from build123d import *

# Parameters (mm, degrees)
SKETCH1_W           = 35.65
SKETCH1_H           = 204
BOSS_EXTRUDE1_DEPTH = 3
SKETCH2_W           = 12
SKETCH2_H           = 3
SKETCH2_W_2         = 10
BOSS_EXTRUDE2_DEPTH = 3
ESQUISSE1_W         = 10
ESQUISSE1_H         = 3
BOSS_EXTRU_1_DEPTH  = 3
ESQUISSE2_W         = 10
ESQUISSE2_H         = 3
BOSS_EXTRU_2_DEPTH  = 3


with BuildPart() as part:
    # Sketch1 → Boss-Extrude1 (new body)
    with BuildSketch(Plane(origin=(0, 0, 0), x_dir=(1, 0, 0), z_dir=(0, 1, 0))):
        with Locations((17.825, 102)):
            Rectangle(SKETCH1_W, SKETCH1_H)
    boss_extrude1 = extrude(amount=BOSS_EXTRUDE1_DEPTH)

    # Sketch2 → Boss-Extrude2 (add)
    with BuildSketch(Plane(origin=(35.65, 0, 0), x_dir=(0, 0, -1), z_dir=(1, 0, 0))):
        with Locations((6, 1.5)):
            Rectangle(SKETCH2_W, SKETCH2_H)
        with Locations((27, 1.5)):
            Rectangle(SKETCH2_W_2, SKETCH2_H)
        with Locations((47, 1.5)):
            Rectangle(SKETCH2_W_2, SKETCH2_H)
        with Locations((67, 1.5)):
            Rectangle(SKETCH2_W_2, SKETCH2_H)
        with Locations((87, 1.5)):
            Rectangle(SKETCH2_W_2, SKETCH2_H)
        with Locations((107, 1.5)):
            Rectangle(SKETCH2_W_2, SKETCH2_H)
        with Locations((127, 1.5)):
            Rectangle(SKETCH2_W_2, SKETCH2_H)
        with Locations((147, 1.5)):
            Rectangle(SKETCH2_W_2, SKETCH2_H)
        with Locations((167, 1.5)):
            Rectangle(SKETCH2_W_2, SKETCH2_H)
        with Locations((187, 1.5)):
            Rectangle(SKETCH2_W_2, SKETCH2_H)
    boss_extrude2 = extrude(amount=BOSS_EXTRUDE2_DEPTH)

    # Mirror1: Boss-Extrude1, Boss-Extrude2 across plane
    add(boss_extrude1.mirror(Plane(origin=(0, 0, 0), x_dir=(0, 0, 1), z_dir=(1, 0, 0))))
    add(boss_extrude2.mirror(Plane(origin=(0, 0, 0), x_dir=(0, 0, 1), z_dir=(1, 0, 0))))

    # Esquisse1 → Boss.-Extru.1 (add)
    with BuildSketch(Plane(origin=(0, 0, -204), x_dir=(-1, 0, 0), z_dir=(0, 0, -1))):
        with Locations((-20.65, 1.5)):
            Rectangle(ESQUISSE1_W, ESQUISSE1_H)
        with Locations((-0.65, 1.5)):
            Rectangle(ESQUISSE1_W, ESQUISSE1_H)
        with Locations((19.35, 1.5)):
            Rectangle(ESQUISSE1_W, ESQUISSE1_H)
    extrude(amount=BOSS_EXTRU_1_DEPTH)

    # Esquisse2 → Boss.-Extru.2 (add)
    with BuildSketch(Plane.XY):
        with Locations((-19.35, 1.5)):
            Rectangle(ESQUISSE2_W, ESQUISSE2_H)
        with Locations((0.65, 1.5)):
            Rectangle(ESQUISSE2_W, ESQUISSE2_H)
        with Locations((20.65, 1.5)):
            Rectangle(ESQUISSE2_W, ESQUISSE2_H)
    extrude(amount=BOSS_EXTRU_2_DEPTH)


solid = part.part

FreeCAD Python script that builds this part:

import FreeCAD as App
import Part
import Sketcher
from FreeCAD import Vector
Q = App.Units.Quantity

doc = App.newDocument("Part")
body = doc.addObject("PartDesign::Body", "Body")

# Sketch on XZ plane
sketch1 = body.newObject("Sketcher::SketchObject", "Sketch")
sketch1.AttachmentSupport = (doc.getObject("XZ_Plane"), [""])
sketch1.MapMode = "FlatFace"
sketch1.addGeometry([
    Part.LineSegment(Vector(0, -204, 0), Vector(0, 0, 0)),
    Part.LineSegment(Vector(0, 0, 0), Vector(36, 0, 0)),
    Part.LineSegment(Vector(36, 0, 0), Vector(36, -204, 0)),
    Part.LineSegment(Vector(36, -204, 0), Vector(0, -204, 0)),
], False)
sketch1.addConstraint([
    Sketcher.Constraint("Coincident", 0, 2, 1, 1),
    Sketcher.Constraint("Coincident", 1, 2, 2, 1),
    Sketcher.Constraint("Coincident", 2, 2, 3, 1),
    Sketcher.Constraint("Coincident", 3, 2, 0, 1),
    Sketcher.Constraint("Vertical", 0),
    Sketcher.Constraint("Horizontal", 1),
    Sketcher.Constraint("Vertical", 2),
    Sketcher.Constraint("Horizontal", 3),
    Sketcher.Constraint("Coincident", 0, 2, -1, 1),
    Sketcher.Constraint("DistanceY", 0, 1, 0, 2, Q("204 mm")),
    Sketcher.Constraint("DistanceX", 1, 1, 1, 2, Q("35.65 mm")),
])
pad1 = body.newObject("PartDesign::Pad", "Pad")
pad1.Profile = sketch1
pad1.Length = 3
pad1.Reversed = True

# Sketch on YZ plane
sketch2 = body.newObject("Sketcher::SketchObject", "Sketch001")
sketch2.AttachmentSupport = (doc.getObject("YZ_Plane"), [""])
sketch2.MapMode = "FlatFace"
sketch2.AttachmentOffset = App.Placement(Vector(0, 0, 35.65), App.Rotation())
sketch2.addGeometry([
    Part.LineSegment(Vector(3, 0, 0), Vector(0, 0, 0)),  # 0
    Part.LineSegment(Vector(0, 0, 0), Vector(0, -12, 0)),  # 1
    Part.LineSegment(Vector(0, -12, 0), Vector(3, -12, 0)),  # 2
    Part.LineSegment(Vector(3, -12, 0), Vector(3, 0, 0)),  # 3
    Part.LineSegment(Vector(3, -22, 0), Vector(0, -22, 0)),  # 4
    Part.LineSegment(Vector(0, -22, 0), Vector(0, -32, 0)),  # 5
    Part.LineSegment(Vector(0, -32, 0), Vector(3, -32, 0)),  # 6
    Part.LineSegment(Vector(3, -32, 0), Vector(3, -22, 0)),  # 7
    Part.LineSegment(Vector(3, -42, 0), Vector(0, -42, 0)),  # 8
    Part.LineSegment(Vector(0, -42, 0), Vector(0, -52, 0)),  # 9
    Part.LineSegment(Vector(0, -52, 0), Vector(3, -52, 0)),  # 10
    Part.LineSegment(Vector(3, -52, 0), Vector(3, -42, 0)),  # 11
    Part.LineSegment(Vector(3, -62, 0), Vector(0, -62, 0)),  # 12
    Part.LineSegment(Vector(0, -62, 0), Vector(0, -72, 0)),  # 13
    Part.LineSegment(Vector(0, -72, 0), Vector(3, -72, 0)),  # 14
    Part.LineSegment(Vector(3, -72, 0), Vector(3, -62, 0)),  # 15
    Part.LineSegment(Vector(3, -82, 0), Vector(0, -82, 0)),  # 16
    Part.LineSegment(Vector(0, -82, 0), Vector(0, -92, 0)),  # 17
    Part.LineSegment(Vector(0, -92, 0), Vector(3, -92, 0)),  # 18
    Part.LineSegment(Vector(3, -92, 0), Vector(3, -82, 0)),  # 19
    Part.LineSegment(Vector(3, -102, 0), Vector(0, -102, 0)),  # 20
    Part.LineSegment(Vector(0, -102, 0), Vector(0, -112, 0)),  # 21
    Part.LineSegment(Vector(0, -112, 0), Vector(3, -112, 0)),  # 22
    Part.LineSegment(Vector(3, -112, 0), Vector(3, -102, 0)),  # 23
    Part.LineSegment(Vector(3, -122, 0), Vector(0, -122, 0)),  # 24
    Part.LineSegment(Vector(0, -122, 0), Vector(0, -132, 0)),  # 25
    Part.LineSegment(Vector(0, -132, 0), Vector(3, -132, 0)),  # 26
    Part.LineSegment(Vector(3, -132, 0), Vector(3, -122, 0)),  # 27
    Part.LineSegment(Vector(3, -142, 0), Vector(0, -142, 0)),  # 28
    Part.LineSegment(Vector(0, -142, 0), Vector(0, -152, 0)),  # 29
    Part.LineSegment(Vector(0, -152, 0), Vector(3, -152, 0)),  # 30
    Part.LineSegment(Vector(3, -152, 0), Vector(3, -142, 0)),  # 31
    Part.LineSegment(Vector(3, -162, 0), Vector(0, -162, 0)),  # 32
    Part.LineSegment(Vector(0, -162, 0), Vector(0, -172, 0)),  # 33
    Part.LineSegment(Vector(0, -172, 0), Vector(3, -172, 0)),  # 34
    Part.LineSegment(Vector(3, -172, 0), Vector(3, -162, 0)),  # 35
    Part.LineSegment(Vector(3, -182, 0), Vector(0, -182, 0)),  # 36
    Part.LineSegment(Vector(0, -182, 0), Vector(0, -192, 0)),  # 37
    Part.LineSegment(Vector(0, -192, 0), Vector(3, -192, 0)),  # 38
    Part.LineSegment(Vector(3, -192, 0), Vector(3, -182, 0)),  # 39
], False)
sketch2.addConstraint([
    Sketcher.Constraint("Coincident", 0, 2, 1, 1),
    Sketcher.Constraint("Coincident", 1, 2, 2, 1),
    Sketcher.Constraint("Coincident", 2, 2, 3, 1),
    Sketcher.Constraint("Coincident", 3, 2, 0, 1),
    Sketcher.Constraint("Coincident", 4, 2, 5, 1),
    Sketcher.Constraint("Coincident", 5, 2, 6, 1),
    Sketcher.Constraint("Coincident", 6, 2, 7, 1),
    Sketcher.Constraint("Coincident", 7, 2, 4, 1),
    Sketcher.Constraint("Coincident", 8, 2, 9, 1),
    Sketcher.Constraint("Coincident", 9, 2, 10, 1),
    Sketcher.Constraint("Coincident", 10, 2, 11, 1),
    Sketcher.Constraint("Coincident", 11, 2, 8, 1),
    Sketcher.Constraint("Coincident", 12, 2, 13, 1),
    Sketcher.Constraint("Coincident", 13, 2, 14, 1),
    Sketcher.Constraint("Coincident", 14, 2, 15, 1),
    Sketcher.Constraint("Coincident", 15, 2, 12, 1),
    Sketcher.Constraint("Coincident", 16, 2, 17, 1),
    Sketcher.Constraint("Coincident", 17, 2, 18, 1),
    Sketcher.Constraint("Coincident", 18, 2, 19, 1),
    Sketcher.Constraint("Coincident", 19, 2, 16, 1),
    Sketcher.Constraint("Coincident", 20, 2, 21, 1),
    Sketcher.Constraint("Coincident", 21, 2, 22, 1),
    Sketcher.Constraint("Coincident", 22, 2, 23, 1),
    Sketcher.Constraint("Coincident", 23, 2, 20, 1),
    Sketcher.Constraint("Coincident", 24, 2, 25, 1),
    Sketcher.Constraint("Coincident", 25, 2, 26, 1),
    Sketcher.Constraint("Coincident", 26, 2, 27, 1),
    Sketcher.Constraint("Coincident", 27, 2, 24, 1),
    Sketcher.Constraint("Coincident", 28, 2, 29, 1),
    Sketcher.Constraint("Coincident", 29, 2, 30, 1),
    Sketcher.Constraint("Coincident", 30, 2, 31, 1),
    Sketcher.Constraint("Coincident", 31, 2, 28, 1),
    Sketcher.Constraint("Coincident", 32, 2, 33, 1),
    Sketcher.Constraint("Coincident", 33, 2, 34, 1),
    Sketcher.Constraint("Coincident", 34, 2, 35, 1),
    Sketcher.Constraint("Coincident", 35, 2, 32, 1),
    Sketcher.Constraint("Coincident", 36, 2, 37, 1),
    Sketcher.Constraint("Coincident", 37, 2, 38, 1),
    Sketcher.Constraint("Coincident", 38, 2, 39, 1),
    Sketcher.Constraint("Coincident", 39, 2, 36, 1),
    Sketcher.Constraint("Horizontal", 0),
    Sketcher.Constraint("Vertical", 1),
    Sketcher.Constraint("Horizontal", 2),
    Sketcher.Constraint("Vertical", 3),
    Sketcher.Constraint("Horizontal", 4),
    Sketcher.Constraint("Vertical", 5),
    Sketcher.Constraint("Horizontal", 6),
    Sketcher.Constraint("Vertical", 7),
    Sketcher.Constraint("Horizontal", 8),
    Sketcher.Constraint("Vertical", 9),
    Sketcher.Constraint("Horizontal", 10),
    Sketcher.Constraint("Vertical", 11),
    Sketcher.Constraint("Horizontal", 12),
    Sketcher.Constraint("Vertical", 13),
    Sketcher.Constraint("Horizontal", 14),
    Sketcher.Constraint("Vertical", 15),
    Sketcher.Constraint("Horizontal", 16),
    Sketcher.Constraint("Vertical", 17),
    Sketcher.Constraint("Horizontal", 18),
    Sketcher.Constraint("Vertical", 19),
    Sketcher.Constraint("Horizontal", 20),
    Sketcher.Constraint("Vertical", 21),
    Sketcher.Constraint("Horizontal", 22),
    Sketcher.Constraint("Vertical", 23),
    Sketcher.Constraint("Horizontal", 24),
    Sketcher.Constraint("Vertical", 25),
    Sketcher.Constraint("Horizontal", 26),
    Sketcher.Constraint("Vertical", 27),
    Sketcher.Constraint("Horizontal", 28),
    Sketcher.Constraint("Vertical", 29),
    Sketcher.Constraint("Horizontal", 30),
    Sketcher.Constraint("Vertical", 31),
    Sketcher.Constraint("Horizontal", 32),
    Sketcher.Constraint("Vertical", 33),
    Sketcher.Constraint("Horizontal", 34),
    Sketcher.Constraint("Vertical", 35),
    Sketcher.Constraint("Horizontal", 36),
    Sketcher.Constraint("Vertical", 37),
    Sketcher.Constraint("Horizontal", 38),
    Sketcher.Constraint("Vertical", 39),
    Sketcher.Constraint("Coincident", 0, 2, -1, 1),
    Sketcher.Constraint("PointOnObject", 4, 2, -2),
    Sketcher.Constraint("PointOnObject", 8, 2, -2),
    Sketcher.Constraint("PointOnObject", 12, 2, -2),
    Sketcher.Constraint("PointOnObject", 16, 2, -2),
    Sketcher.Constraint("PointOnObject", 20, 2, -2),
    Sketcher.Constraint("PointOnObject", 24, 2, -2),
    Sketcher.Constraint("PointOnObject", 28, 2, -2),
    Sketcher.Constraint("PointOnObject", 32, 2, -2),
    Sketcher.Constraint("PointOnObject", 36, 2, -2),
    Sketcher.Constraint("Vertical", 3, 2, 6, 2),
    Sketcher.Constraint("Vertical", 7, 2, 10, 2),
    Sketcher.Constraint("Vertical", 11, 2, 14, 2),
    Sketcher.Constraint("Vertical", 15, 2, 18, 2),
    Sketcher.Constraint("Vertical", 19, 2, 22, 2),
    Sketcher.Constraint("Vertical", 23, 2, 26, 2),
    Sketcher.Constraint("Vertical", 27, 2, 30, 2),
    Sketcher.Constraint("Vertical", 31, 2, 34, 2),
    Sketcher.Constraint("Vertical", 35, 2, 38, 2),
    Sketcher.Constraint("Equal", 7, 9),
    Sketcher.Constraint("Equal", 11, 13),
    Sketcher.Constraint("Equal", 15, 17),
    Sketcher.Constraint("Equal", 19, 21),
    Sketcher.Constraint("Equal", 23, 25),
    Sketcher.Constraint("Equal", 27, 29),
    Sketcher.Constraint("Equal", 31, 33),
    Sketcher.Constraint("Equal", 35, 37),
    Sketcher.Constraint("DistanceX", 0, 2, 0, 1, Q("3 mm")),
    Sketcher.Constraint("DistanceY", 1, 2, 1, 1, Q("12 mm")),
    Sketcher.Constraint("DistanceY", 5, 2, 5, 1, Q("10 mm")),
    Sketcher.Constraint("DistanceY", 4, 2, -1, 1, Q("22 mm")),
    Sketcher.Constraint("DistanceY", 8, 2, -1, 1, Q("42 mm")),
    Sketcher.Constraint("DistanceY", 12, 2, -1, 1, Q("62 mm")),
    Sketcher.Constraint("DistanceY", 16, 2, -1, 1, Q("82 mm")),
    Sketcher.Constraint("DistanceY", 20, 2, -1, 1, Q("102 mm")),
    Sketcher.Constraint("DistanceY", 24, 2, -1, 1, Q("122 mm")),
    Sketcher.Constraint("DistanceY", 28, 2, -1, 1, Q("142 mm")),
    Sketcher.Constraint("DistanceY", 32, 2, -1, 1, Q("162 mm")),
    Sketcher.Constraint("DistanceY", 36, 2, -1, 1, Q("182 mm")),
])
pad2 = body.newObject("PartDesign::Pad", "Pad001")
pad2.Profile = sketch2
pad2.Length = 3
doc.recompute()

mirrored = body.newObject("PartDesign::Mirrored", "Mirrored")
mirrored.Originals = [pad1, pad2]
mirrored.MirrorPlane = (doc.getObject("YZ_Plane"), [""])
body.Tip = mirrored

# Sketch on XY plane
sketch3 = body.newObject("Sketcher::SketchObject", "Sketch002")
sketch3.AttachmentSupport = (doc.getObject("XY_Plane"), [""])
sketch3.MapMode = "FlatFace"
sketch3.AttachmentOffset = App.Placement(Vector(0, 0, -204), App.Rotation())
sketch3.addGeometry([
    Part.LineSegment(Vector(25.6, 3, 0), Vector(25.6, 0, 0)),  # 0
    Part.LineSegment(Vector(25.6, 0, 0), Vector(15.7, 0, 0)),  # 1
    Part.LineSegment(Vector(15.7, 0, 0), Vector(15.7, 3, 0)),  # 2
    Part.LineSegment(Vector(15.7, 3, 0), Vector(25.6, 3, 0)),  # 3
    Part.LineSegment(Vector(5.7, 3, 0), Vector(5.7, 0, 0)),  # 4
    Part.LineSegment(Vector(5.7, 0, 0), Vector(-4.3, 0, 0)),  # 5
    Part.LineSegment(Vector(-4.3, 0, 0), Vector(-4.3, 3, 0)),  # 6
    Part.LineSegment(Vector(-4.3, 3, 0), Vector(5.7, 3, 0)),  # 7
    Part.LineSegment(Vector(-14.3, 3, 0), Vector(-14.3, 0, 0)),  # 8
    Part.LineSegment(Vector(-14.3, 0, 0), Vector(-24.4, 0, 0)),  # 9
    Part.LineSegment(Vector(-24.4, 0, 0), Vector(-24.4, 3, 0)),  # 10
    Part.LineSegment(Vector(-24.4, 3, 0), Vector(-14.3, 3, 0)),  # 11
], False)
sketch3.addConstraint([
    Sketcher.Constraint("Coincident", 0, 2, 1, 1),
    Sketcher.Constraint("Coincident", 1, 2, 2, 1),
    Sketcher.Constraint("Coincident", 2, 2, 3, 1),
    Sketcher.Constraint("Coincident", 3, 2, 0, 1),
    Sketcher.Constraint("Coincident", 4, 2, 5, 1),
    Sketcher.Constraint("Coincident", 5, 2, 6, 1),
    Sketcher.Constraint("Coincident", 6, 2, 7, 1),
    Sketcher.Constraint("Coincident", 7, 2, 4, 1),
    Sketcher.Constraint("Coincident", 8, 2, 9, 1),
    Sketcher.Constraint("Coincident", 9, 2, 10, 1),
    Sketcher.Constraint("Coincident", 10, 2, 11, 1),
    Sketcher.Constraint("Coincident", 11, 2, 8, 1),
    Sketcher.Constraint("Vertical", 0),
    Sketcher.Constraint("Horizontal", 1),
    Sketcher.Constraint("Vertical", 2),
    Sketcher.Constraint("Horizontal", 3),
    Sketcher.Constraint("Vertical", 4),
    Sketcher.Constraint("Horizontal", 5),
    Sketcher.Constraint("Vertical", 6),
    Sketcher.Constraint("Horizontal", 7),
    Sketcher.Constraint("Vertical", 8),
    Sketcher.Constraint("Horizontal", 9),
    Sketcher.Constraint("Vertical", 10),
    Sketcher.Constraint("Horizontal", 11),
    Sketcher.Constraint("PointOnObject", 0, 2, -1),
    Sketcher.Constraint("PointOnObject", 4, 2, -1),
    Sketcher.Constraint("PointOnObject", 8, 2, -1),
    Sketcher.Constraint("Horizontal", 3, 2, 6, 2),
    Sketcher.Constraint("Horizontal", 7, 2, 10, 2),
    Sketcher.Constraint("Equal", 3, 5),
    Sketcher.Constraint("Equal", 7, 9),
    Sketcher.Constraint("DistanceX", 1, 2, 1, 1, Q("10 mm")),
    Sketcher.Constraint("DistanceY", 0, 2, 0, 1, Q("3 mm")),
    Sketcher.Constraint("DistanceX", 4, 2, 1, 2, Q("10 mm")),
    Sketcher.Constraint("DistanceX", 8, 2, 5, 2, Q("10 mm")),
    Sketcher.Constraint("DistanceX", -1, 1, 0, 2, Q("25.65 mm")),
])
pad3 = body.newObject("PartDesign::Pad", "Pad002")
pad3.Profile = sketch3
pad3.Length = 3
pad3.Reversed = True

# Sketch on XY plane
sketch4 = body.newObject("Sketcher::SketchObject", "Sketch003")
sketch4.AttachmentSupport = (doc.getObject("XY_Plane"), [""])
sketch4.MapMode = "FlatFace"
sketch4.addGeometry([
    Part.LineSegment(Vector(-24.4, 3, 0), Vector(-24.4, 0, 0)),  # 0
    Part.LineSegment(Vector(-24.4, 0, 0), Vector(-14.3, 0, 0)),  # 1
    Part.LineSegment(Vector(-14.3, 0, 0), Vector(-14.3, 3, 0)),  # 2
    Part.LineSegment(Vector(-14.3, 3, 0), Vector(-24.4, 3, 0)),  # 3
    Part.LineSegment(Vector(-4.3, 3, 0), Vector(-4.3, 0, 0)),  # 4
    Part.LineSegment(Vector(-4.3, 0, 0), Vector(5.7, 0, 0)),  # 5
    Part.LineSegment(Vector(5.7, 0, 0), Vector(5.7, 3, 0)),  # 6
    Part.LineSegment(Vector(5.7, 3, 0), Vector(-4.3, 3, 0)),  # 7
    Part.LineSegment(Vector(15.7, 3, 0), Vector(15.7, 0, 0)),  # 8
    Part.LineSegment(Vector(15.7, 0, 0), Vector(25.6, 0, 0)),  # 9
    Part.LineSegment(Vector(25.6, 0, 0), Vector(25.6, 3, 0)),  # 10
    Part.LineSegment(Vector(25.6, 3, 0), Vector(15.7, 3, 0)),  # 11
], False)
sketch4.addConstraint([
    Sketcher.Constraint("Coincident", 0, 2, 1, 1),
    Sketcher.Constraint("Coincident", 1, 2, 2, 1),
    Sketcher.Constraint("Coincident", 2, 2, 3, 1),
    Sketcher.Constraint("Coincident", 3, 2, 0, 1),
    Sketcher.Constraint("Coincident", 4, 2, 5, 1),
    Sketcher.Constraint("Coincident", 5, 2, 6, 1),
    Sketcher.Constraint("Coincident", 6, 2, 7, 1),
    Sketcher.Constraint("Coincident", 7, 2, 4, 1),
    Sketcher.Constraint("Coincident", 8, 2, 9, 1),
    Sketcher.Constraint("Coincident", 9, 2, 10, 1),
    Sketcher.Constraint("Coincident", 10, 2, 11, 1),
    Sketcher.Constraint("Coincident", 11, 2, 8, 1),
    Sketcher.Constraint("Vertical", 0),
    Sketcher.Constraint("Horizontal", 1),
    Sketcher.Constraint("Vertical", 2),
    Sketcher.Constraint("Horizontal", 3),
    Sketcher.Constraint("Vertical", 4),
    Sketcher.Constraint("Horizontal", 5),
    Sketcher.Constraint("Vertical", 6),
    Sketcher.Constraint("Horizontal", 7),
    Sketcher.Constraint("Vertical", 8),
    Sketcher.Constraint("Horizontal", 9),
    Sketcher.Constraint("Vertical", 10),
    Sketcher.Constraint("Horizontal", 11),
    Sketcher.Constraint("PointOnObject", 0, 2, -1),
    Sketcher.Constraint("PointOnObject", 4, 2, -1),
    Sketcher.Constraint("PointOnObject", 8, 2, -1),
    Sketcher.Constraint("Horizontal", 3, 2, 6, 2),
    Sketcher.Constraint("Horizontal", 7, 2, 10, 2),
    Sketcher.Constraint("Equal", 3, 5),
    Sketcher.Constraint("Equal", 7, 9),
    Sketcher.Constraint("DistanceX", 1, 1, 1, 2, Q("10 mm")),
    Sketcher.Constraint("DistanceY", 0, 2, 0, 1, Q("3 mm")),
    Sketcher.Constraint("DistanceX", 1, 2, 4, 2, Q("10 mm")),
    Sketcher.Constraint("DistanceX", 5, 2, 8, 2, Q("10 mm")),
    Sketcher.Constraint("DistanceX", 0, 2, -1, 1, Q("24.35 mm")),
])
pad4 = body.newObject("PartDesign::Pad", "Pad003")
pad4.Profile = sketch4
pad4.Length = 3

doc.recompute()
